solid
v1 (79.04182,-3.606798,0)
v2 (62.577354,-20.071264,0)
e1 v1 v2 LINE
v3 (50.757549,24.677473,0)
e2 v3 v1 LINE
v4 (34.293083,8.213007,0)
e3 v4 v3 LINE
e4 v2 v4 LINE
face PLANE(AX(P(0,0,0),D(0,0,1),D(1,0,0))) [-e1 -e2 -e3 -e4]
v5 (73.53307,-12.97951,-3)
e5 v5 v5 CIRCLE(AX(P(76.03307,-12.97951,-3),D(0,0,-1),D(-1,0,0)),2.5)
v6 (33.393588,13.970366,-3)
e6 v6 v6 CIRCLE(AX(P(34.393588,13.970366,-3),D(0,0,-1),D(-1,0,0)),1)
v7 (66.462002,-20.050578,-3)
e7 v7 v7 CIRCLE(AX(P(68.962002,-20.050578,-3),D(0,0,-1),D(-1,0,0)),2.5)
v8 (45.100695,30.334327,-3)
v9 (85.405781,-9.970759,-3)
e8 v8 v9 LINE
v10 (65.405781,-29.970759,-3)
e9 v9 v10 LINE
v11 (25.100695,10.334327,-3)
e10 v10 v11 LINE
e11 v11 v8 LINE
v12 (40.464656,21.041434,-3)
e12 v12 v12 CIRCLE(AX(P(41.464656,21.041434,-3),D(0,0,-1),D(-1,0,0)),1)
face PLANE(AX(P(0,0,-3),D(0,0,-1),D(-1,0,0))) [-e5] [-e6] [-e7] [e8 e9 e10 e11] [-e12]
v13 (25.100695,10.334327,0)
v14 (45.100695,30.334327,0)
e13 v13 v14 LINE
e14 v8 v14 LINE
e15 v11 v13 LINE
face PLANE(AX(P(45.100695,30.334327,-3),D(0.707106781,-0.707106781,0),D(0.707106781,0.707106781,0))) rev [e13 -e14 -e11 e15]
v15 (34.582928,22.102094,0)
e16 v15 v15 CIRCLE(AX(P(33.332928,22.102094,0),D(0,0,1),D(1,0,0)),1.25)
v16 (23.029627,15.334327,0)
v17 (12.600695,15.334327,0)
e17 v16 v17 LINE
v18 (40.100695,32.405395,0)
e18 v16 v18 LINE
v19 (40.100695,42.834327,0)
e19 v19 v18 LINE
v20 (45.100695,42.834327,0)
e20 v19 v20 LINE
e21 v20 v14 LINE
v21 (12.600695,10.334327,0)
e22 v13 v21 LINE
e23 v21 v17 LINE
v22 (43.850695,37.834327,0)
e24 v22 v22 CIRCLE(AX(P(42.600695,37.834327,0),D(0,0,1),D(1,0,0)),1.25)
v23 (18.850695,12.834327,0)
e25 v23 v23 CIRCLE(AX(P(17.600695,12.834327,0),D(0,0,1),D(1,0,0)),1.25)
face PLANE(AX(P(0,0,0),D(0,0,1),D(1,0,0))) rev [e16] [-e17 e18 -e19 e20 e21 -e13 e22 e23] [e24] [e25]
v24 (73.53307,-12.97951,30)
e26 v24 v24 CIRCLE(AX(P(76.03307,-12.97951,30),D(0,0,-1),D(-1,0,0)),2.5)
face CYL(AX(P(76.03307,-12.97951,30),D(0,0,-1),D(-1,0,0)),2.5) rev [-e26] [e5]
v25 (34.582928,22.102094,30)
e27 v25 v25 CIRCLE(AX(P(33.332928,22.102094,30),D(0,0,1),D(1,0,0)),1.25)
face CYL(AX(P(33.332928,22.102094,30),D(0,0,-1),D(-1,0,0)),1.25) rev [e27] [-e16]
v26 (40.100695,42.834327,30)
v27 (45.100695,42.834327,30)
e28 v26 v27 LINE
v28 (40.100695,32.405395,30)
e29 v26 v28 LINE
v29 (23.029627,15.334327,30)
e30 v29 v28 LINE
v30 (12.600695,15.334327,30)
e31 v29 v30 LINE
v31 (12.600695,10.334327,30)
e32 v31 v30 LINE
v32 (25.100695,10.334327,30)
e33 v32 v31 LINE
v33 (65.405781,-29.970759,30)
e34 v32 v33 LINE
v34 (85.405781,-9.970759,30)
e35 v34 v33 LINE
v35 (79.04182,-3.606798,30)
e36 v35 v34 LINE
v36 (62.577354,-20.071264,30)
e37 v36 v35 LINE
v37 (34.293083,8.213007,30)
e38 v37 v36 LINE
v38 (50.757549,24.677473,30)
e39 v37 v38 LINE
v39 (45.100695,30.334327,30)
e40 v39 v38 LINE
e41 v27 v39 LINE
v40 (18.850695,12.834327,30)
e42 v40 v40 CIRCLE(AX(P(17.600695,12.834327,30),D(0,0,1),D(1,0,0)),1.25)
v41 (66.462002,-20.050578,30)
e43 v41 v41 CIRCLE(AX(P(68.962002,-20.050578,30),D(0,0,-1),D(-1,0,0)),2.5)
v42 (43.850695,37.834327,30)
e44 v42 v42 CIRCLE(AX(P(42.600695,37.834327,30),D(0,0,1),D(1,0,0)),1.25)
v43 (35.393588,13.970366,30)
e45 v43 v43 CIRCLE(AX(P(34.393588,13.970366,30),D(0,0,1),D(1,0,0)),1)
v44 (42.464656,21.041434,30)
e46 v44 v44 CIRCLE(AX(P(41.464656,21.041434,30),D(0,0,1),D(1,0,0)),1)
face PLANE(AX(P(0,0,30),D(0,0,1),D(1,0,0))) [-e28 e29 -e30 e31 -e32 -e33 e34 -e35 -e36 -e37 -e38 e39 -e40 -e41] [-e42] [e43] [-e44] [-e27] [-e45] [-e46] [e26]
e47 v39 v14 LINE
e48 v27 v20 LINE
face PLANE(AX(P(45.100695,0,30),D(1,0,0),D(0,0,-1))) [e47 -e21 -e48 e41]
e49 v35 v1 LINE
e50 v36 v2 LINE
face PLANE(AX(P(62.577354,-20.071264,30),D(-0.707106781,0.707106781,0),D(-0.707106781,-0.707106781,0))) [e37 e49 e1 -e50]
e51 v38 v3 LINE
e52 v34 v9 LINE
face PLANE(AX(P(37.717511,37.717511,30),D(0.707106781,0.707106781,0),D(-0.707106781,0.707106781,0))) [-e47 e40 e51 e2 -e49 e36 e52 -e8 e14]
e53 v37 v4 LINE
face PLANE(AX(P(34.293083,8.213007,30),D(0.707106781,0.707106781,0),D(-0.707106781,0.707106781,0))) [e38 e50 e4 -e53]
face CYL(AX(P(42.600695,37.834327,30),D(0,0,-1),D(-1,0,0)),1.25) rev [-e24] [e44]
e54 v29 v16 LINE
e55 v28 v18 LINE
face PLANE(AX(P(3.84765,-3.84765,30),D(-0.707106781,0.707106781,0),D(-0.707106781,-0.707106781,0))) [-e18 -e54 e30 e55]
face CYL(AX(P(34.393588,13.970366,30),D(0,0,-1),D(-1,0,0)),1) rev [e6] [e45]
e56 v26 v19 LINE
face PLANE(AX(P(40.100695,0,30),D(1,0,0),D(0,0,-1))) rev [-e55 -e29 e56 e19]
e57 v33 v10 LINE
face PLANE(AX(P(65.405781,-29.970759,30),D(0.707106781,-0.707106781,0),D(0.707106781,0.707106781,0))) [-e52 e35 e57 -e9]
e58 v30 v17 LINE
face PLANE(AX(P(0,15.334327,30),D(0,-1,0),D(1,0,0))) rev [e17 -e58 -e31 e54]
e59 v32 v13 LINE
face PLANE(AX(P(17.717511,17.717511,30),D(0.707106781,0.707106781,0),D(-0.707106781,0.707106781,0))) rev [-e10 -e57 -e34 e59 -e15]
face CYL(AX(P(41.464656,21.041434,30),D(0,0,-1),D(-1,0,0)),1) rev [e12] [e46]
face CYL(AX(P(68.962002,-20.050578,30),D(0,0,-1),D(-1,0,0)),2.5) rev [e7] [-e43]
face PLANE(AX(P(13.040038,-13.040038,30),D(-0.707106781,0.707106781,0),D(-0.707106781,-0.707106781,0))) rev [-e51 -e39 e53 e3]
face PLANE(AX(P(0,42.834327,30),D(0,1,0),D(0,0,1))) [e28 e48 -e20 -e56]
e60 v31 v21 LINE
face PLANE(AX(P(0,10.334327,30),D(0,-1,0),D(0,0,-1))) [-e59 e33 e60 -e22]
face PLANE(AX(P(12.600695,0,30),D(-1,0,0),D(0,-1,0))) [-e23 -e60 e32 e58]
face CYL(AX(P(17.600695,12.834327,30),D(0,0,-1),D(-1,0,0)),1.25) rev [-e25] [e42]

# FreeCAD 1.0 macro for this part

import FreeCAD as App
import Part
import Sketcher
from FreeCAD import Vector
Q = App.Units.Quantity

doc = App.newDocument("Part")
body = doc.addObject("PartDesign::Body", "Body")

# Sketch on XY plane
sketch1 = body.newObject("Sketcher::SketchObject", "Sketch")
sketch1.AttachmentSupport = (doc.getObject("XY_Plane"), [""])
sketch1.MapMode = "FlatFace"
sketch1.addGeometry([
    Part.LineSegment(Vector(25.1, 10.3, 0), Vector(30.8, 4.7, 0)),  # 0
    Part.LineSegment(Vector(30.8, 4.7, 0), Vector(50.8, 24.7, 0)),  # 1
    Part.LineSegment(Vector(50.8, 24.7, 0), Vector(45.1, 30.3, 0)),  # 2
    Part.LineSegment(Vector(45.1, 30.3, 0), Vector(45.1, 42.8, 0)),  # 3
    Part.LineSegment(Vector(45.1, 42.8, 0), Vector(40.1, 42.8, 0)),  # 4
    Part.LineSegment(Vector(40.1, 42.8, 0), Vector(40.1, 32.4, 0)),  # 5
    Part.LineSegment(Vector(40.1, 32.4, 0), Vector(23, 15.3, 0)),  # 6
    Part.LineSegment(Vector(23, 15.3, 0), Vector(12.6, 15.3, 0)),  # 7
    Part.LineSegment(Vector(12.6, 15.3, 0), Vector(12.6, 10.3, 0)),  # 8
    Part.LineSegment(Vector(12.6, 10.3, 0), Vector(25.1, 10.3, 0)),  # 9
    Part.Circle(Vector(34.4, 14, 0), Vector(0, 0, 1), 1),  # 10
    Part.Circle(Vector(41.5, 21, 0), Vector(0, 0, 1), 1),  # 11
    Part.Circle(Vector(42.6, 37.8, 0), Vector(0, 0, 1), 1.2),  # 12
    Part.Circle(Vector(33.3, 22.1, 0), Vector(0, 0, 1), 1.2),  # 13
    Part.Circle(Vector(17.6, 12.8, 0), Vector(0, 0, 1), 1.2),  # 14
], False)
sketch1.addConstraint([
    Sketcher.Constraint("Coincident", 0, 2, 1, 1),
    Sketcher.Constraint("Coincident", 1, 2, 2, 1),
    Sketcher.Constraint("Coincident", 2, 2, 3, 1),
    Sketcher.Constraint("Coincident", 3, 2, 4, 1),
    Sketcher.Constraint("Coincident", 4, 2, 5, 1),
    Sketcher.Constraint("Coincident", 5, 2, 6, 1),
    Sketcher.Constraint("Coincident", 6, 2, 7, 1),
    Sketcher.Constraint("Coincident", 7, 2, 8, 1),
    Sketcher.Constraint("Coincident", 8, 2, 9, 1),
    Sketcher.Constraint("Coincident", 9, 2, 0, 1),
    Sketcher.Constraint("Vertical", 3),
    Sketcher.Constraint("Horizontal", 4),
    Sketcher.Constraint("Vertical", 5),
    Sketcher.Constraint("Horizontal", 7),
    Sketcher.Constraint("Vertical", 8),
    Sketcher.Constraint("Horizontal", 9),
    Sketcher.Constraint("Equal", 10, 11),
    Sketcher.Constraint("Equal", 12, 13),
    Sketcher.Constraint("Equal", 13, 14),
    Sketcher.Constraint("Perpendicular", 0, 1),
    Sketcher.Constraint("Perpendicular", 1, 2),
    Sketcher.Constraint("Perpendicular", 2, 6),
    Sketcher.Constraint("Equal", 9, 3),
    Sketcher.Constraint("Equal", 7, 5),
    Sketcher.Constraint("Equal", 4, 8),
    Sketcher.Constraint("Equal", 0, 2),
    Sketcher.Constraint("Diameter", 10, Q("2 mm")),
    Sketcher.Constraint("Diameter", 12, Q("2.5 mm")),
    Sketcher.Constraint("DistanceX", 4, 2, 4, 1, Q("5 mm")),
    Sketcher.Constraint("Distance", 0, Q("8 mm")),
    Sketcher.Constraint("DistanceX", 9, 1, 9, 2, Q("12.5 mm")),
    Sketcher.Constraint("DistanceX", 14, 3, 12, 3, Q("25 mm")),
    Sketcher.Constraint("DistanceY", 14, 3, 12, 3, Q("25 mm")),
    Sketcher.Constraint("DistanceX", 0, 2, 1, 2, Q("20 mm")),
    Sketcher.Constraint("DistanceY", 12, 3, 3, 2, Q("5 mm")),
    Sketcher.Constraint("DistanceX", 7, 2, 14, 3, Q("5 mm")),
    Sketcher.Constraint("DistanceX", 6, 2, 13, 3, Q("10.303301 mm")),
    Sketcher.Constraint("DistanceX", 7, 2, 7, 1, Q("10.428932 mm")),
    Sketcher.Constraint("DistanceX", -1, 1, 10, 3, Q("34.393588 mm")),
    Sketcher.Constraint("DistanceX", -1, 1, 13, 3, Q("33.332928 mm")),
    Sketcher.Constraint("DistanceX", 11, 3, 12, 3, Q("1.136039 mm")),
    Sketcher.Constraint("DistanceY", 10, 3, 12, 3, Q("23.863961 mm")),
    Sketcher.Constraint("DistanceY", 11, 3, 13, 3, Q("1.06066 mm")),
    Sketcher.Constraint("DistanceY", 0, 2, 13, 3, Q("17.424621 mm")),
    Sketcher.Constraint("DistanceY", -1, 1, 10, 3, Q("13.970366 mm")),
])
pad1 = body.newObject("PartDesign::Pad", "Pad")
pad1.Profile = sketch1
pad1.Length = 30

# Sketch on XY plane
sketch2 = body.newObject("Sketcher::SketchObject", "Sketch001")
sketch2.AttachmentSupport = (doc.getObject("XY_Plane"), [""])
sketch2.MapMode = "FlatFace"
sketch2.addGeometry([
    Part.LineSegment(Vector(65.4, -30, 0), Vector(30.8, 4.7, 0)),  # 0
    Part.LineSegment(Vector(30.8, 4.7, 0), Vector(34.3, 8.2, 0)),  # 1
    Part.LineSegment(Vector(34.3, 8.2, 0), Vector(62.6, -20.1, 0)),  # 2
    Part.LineSegment(Vector(62.6, -20.1, 0), Vector(79, -3.6, 0)),  # 3
    Part.LineSegment(Vector(79, -3.6, 0), Vector(85.4, -10, 0)),  # 4
    Part.LineSegment(Vector(85.4, -10, 0), Vector(65.4, -30, 0)),  # 5
    Part.Circle(Vector(69, -20.1, 0), Vector(0, 0, 1), 2.5),  # 6
    Part.Circle(Vector(76, -13, 0), Vector(0, 0, 1), 2.5),  # 7
], False)
sketch2.addConstraint([
    Sketcher.Constraint("Coincident", 0, 2, 1, 1),
    Sketcher.Constraint("Coincident", 1, 2, 2, 1),
    Sketcher.Constraint("Coincident", 2, 2, 3, 1),
    Sketcher.Constraint("Coincident", 3, 2, 4, 1),
    Sketcher.Constraint("Coincident", 4, 2, 5, 1),
    Sketcher.Constraint("Coincident", 5, 2, 0, 1),
    Sketcher.Constraint("Equal", 6, 7),
    Sketcher.Constraint("Perpendicular", 0, 1),
    Sketcher.Constraint("Perpendicular", 1, 2),
    Sketcher.Constraint("Perpendicular", 2, 3),
    Sketcher.Constraint("Perpendicular", 3, 4),
    Sketcher.Constraint("Perpendicular", 4, 5),
    Sketcher.Constraint("Diameter", 6, Q("5 mm")),
    Sketcher.Constraint("Angle", 0, Q("135 deg")),
    Sketcher.Constraint("Distance", 0, Q("49 mm")),
    Sketcher.Constraint("Distance", 1, Q("5 mm")),
    Sketcher.Constraint("Distance", 2, Q("40 mm")),
    Sketcher.Constraint("DistanceX", 5, 2, 4, 2, Q("20 mm")),
    Sketcher.Constraint("DistanceX", -1, 1, 6, 3, Q("68.962002 mm")),
    Sketcher.Constraint("DistanceY", 3, 2, -1, 1, Q("3.606798 mm")),
    Sketcher.Constraint("DistanceX", -1, 1, 7, 3, Q("76.03307 mm")),
    Sketcher.Constraint("DistanceY", 7, 3, -1, 1, Q("12.97951 mm")),
    Sketcher.Constraint("DistanceX", -1, 1, 0, 2, Q("30.757549 mm")),
    Sketcher.Constraint("DistanceY", 6, 3, 0, 2, Q("24.728051 mm")),
])
pad2 = body.newObject("PartDesign::Pad", "Pad001")
pad2.Profile = sketch2
pad2.Length = 30

# Sketch on XY plane
sketch3 = body.newObject("Sketcher::SketchObject", "Sketch002")
sketch3.AttachmentSupport = (doc.getObject("XY_Plane"), [""])
sketch3.MapMode = "FlatFace"
sketch3.AttachmentOffset = App.Placement(Vector(0, 0, -3), App.Rotation())
sketch3.addGeometry([
    Part.LineSegment(Vector(25.1, 10.3, 0), Vector(45.1, 30.3, 0)),  # 0
    Part.LineSegment(Vector(45.1, 30.3, 0), Vector(50.8, 24.7, 0)),  # 1
    Part.LineSegment(Vector(50.8, 24.7, 0), Vector(34.3, 8.2, 0)),  # 2
    Part.LineSegment(Vector(34.3, 8.2, 0), Vector(62.6, -20.1, 0)),  # 3
    Part.LineSegment(Vector(62.6, -20.1, 0), Vector(79, -3.6, 0)),  # 4
    Part.LineSegment(Vector(79, -3.6, 0), Vector(85.4, -10, 0)),  # 5
    Part.LineSegment(Vector(85.4, -10, 0), Vector(65.4, -30, 0)),  # 6
    Part.LineSegment(Vector(65.4, -30, 0), Vector(25.1, 10.3, 0)),  # 7
    Part.Circle(Vector(69, -20.1, 0), Vector(0, 0, 1), 2.5),  # 8
    Part.Circle(Vector(76, -13, 0), Vector(0, 0, 1), 2.5),  # 9
    Part.Circle(Vector(34.4, 14, 0), Vector(0, 0, 1), 1),  # 10
    Part.Circle(Vector(41.5, 21, 0), Vector(0, 0, 1), 1),  # 11
], False)
sketch3.addConstraint([
    Sketcher.Constraint("Coincident", 0, 2, 1, 1),
    Sketcher.Constraint("Coincident", 1, 2, 2, 1),
    Sketcher.Constraint("Coincident", 2, 2, 3, 1),
    Sketcher.Constraint("Coincident", 3, 2, 4, 1),
    Sketcher.Constraint("Coincident", 4, 2, 5, 1),
    Sketcher.Constraint("Coincident", 5, 2, 6, 1),
    Sketcher.Constraint("Coincident", 6, 2, 7, 1),
    Sketcher.Constraint("Coincident", 7, 2, 0, 1),
    Sketcher.Constraint("Equal", 8, 9),
    Sketcher.Constraint("Equal", 10, 11),
    Sketcher.Constraint("Perpendicular", 0, 1),
    Sketcher.Constraint("Perpendicular", 1, 2),
    Sketcher.Constraint("Perpendicular", 2, 3),
    Sketcher.Constraint("Perpendicular", 3, 4),
    Sketcher.Constraint("Perpendicular", 4, 5),
    Sketcher.Constraint("Perpendicular", 5, 6),
    Sketcher.Constraint("Perpendicular", 6, 7),
    Sketcher.Constraint("Equal", 2, 4),
    Sketcher.Constraint("Diameter", 8, Q("5 mm")),
    Sketcher.Constraint("Diameter", 10, Q("2 mm")),
    Sketcher.Constraint("Angle", 0, Q("45 deg")),
    Sketcher.Constraint("Distance", 1, Q("8 mm")),
    Sketcher.Constraint("Distance", 3, Q("40 mm")),
    Sketcher.Constraint("Distance", 5, Q("9 mm")),
    Sketcher.Constraint("DistanceX", 6, 2, 5, 2, Q("20 mm")),
    Sketcher.Constraint("DistanceX", -1, 1, 8, 3, Q("68.962002 mm")),
    Sketcher.Constraint("DistanceY", 4, 2, -1, 1, Q("3.606798 mm")),
    Sketcher.Constraint("DistanceX", 11, 3, 3, 2, Q("21.112698 mm")),
    Sketcher.Constraint("DistanceY", 3, 2, 11, 3, Q("41.112698 mm")),
    Sketcher.Constraint("Distance", 2, Q("23.284271 mm")),
    Sketcher.Constraint("DistanceX", -1, 1, 9, 3, Q("76.03307 mm")),
    Sketcher.Constraint("DistanceY", 9, 3, -1, 1, Q("12.97951 mm")),
    Sketcher.Constraint("DistanceX", -1, 1, 10, 3, Q("34.393588 mm")),
    Sketcher.Constraint("DistanceX", -1, 1, 1, 2, Q("50.757549 mm")),
    Sketcher.Constraint("DistanceY", 8, 3, 11, 3, Q("41.092012 mm")),
    Sketcher.Constraint("DistanceY", 10, 3, 0, 2, Q("16.363961 mm")),
])
pad3 = body.newObject("PartDesign::Pad", "Pad002")
pad3.Profile = sketch3
pad3.Length = 3

# Sketch on XY plane
sketch4 = body.newObject("Sketcher::SketchObject", "Sketch003")
sketch4.AttachmentSupport = (doc.getObject("XY_Plane"), [""])
sketch4.MapMode = "FlatFace"
sketch4.AttachmentOffset = App.Placement(Vector(0, 0, -3), App.Rotation())
sketch4.addGeometry([
    Part.LineSegment(Vector(34, 8, 0), Vector(51, 25, 0)),
    Part.LineSegment(Vector(51, 25, 0), Vector(79, -4, 0)),
    Part.LineSegment(Vector(79, -4, 0), Vector(63, -20, 0)),
    Part.LineSegment(Vector(63, -20, 0), Vector(34, 8, 0)),
], False)
sketch4.addConstraint([
    Sketcher.Constraint("Coincident", 0, 2, 1, 1),
    Sketcher.Constraint("Coincident", 1, 2, 2, 1),
    Sketcher.Constraint("Coincident", 2, 2, 3, 1),
    Sketcher.Constraint("Coincident", 3, 2, 0, 1),
    Sketcher.Constraint("Perpendicular", 0, 1),
    Sketcher.Constraint("Perpendicular", 1, 2),
    Sketcher.Constraint("Perpendicular", 2, 3),
    Sketcher.Constraint("Angle", 0, Q("45 deg")),
    Sketcher.Constraint("Distance", 1, Q("40 mm")),
    Sketcher.Constraint("DistanceY", 1, 2, -1, 1, Q("3.606798 mm")),
    Sketcher.Constraint("Distance", 0, Q("23.284271 mm")),
    Sketcher.Constraint("DistanceX", -1, 1, 0, 2, Q("50.757549 mm")),
])
pad4 = body.newObject("PartDesign::Pad", "Pad003")
pad4.Profile = sketch4
pad4.Length = 3

doc.recompute()
